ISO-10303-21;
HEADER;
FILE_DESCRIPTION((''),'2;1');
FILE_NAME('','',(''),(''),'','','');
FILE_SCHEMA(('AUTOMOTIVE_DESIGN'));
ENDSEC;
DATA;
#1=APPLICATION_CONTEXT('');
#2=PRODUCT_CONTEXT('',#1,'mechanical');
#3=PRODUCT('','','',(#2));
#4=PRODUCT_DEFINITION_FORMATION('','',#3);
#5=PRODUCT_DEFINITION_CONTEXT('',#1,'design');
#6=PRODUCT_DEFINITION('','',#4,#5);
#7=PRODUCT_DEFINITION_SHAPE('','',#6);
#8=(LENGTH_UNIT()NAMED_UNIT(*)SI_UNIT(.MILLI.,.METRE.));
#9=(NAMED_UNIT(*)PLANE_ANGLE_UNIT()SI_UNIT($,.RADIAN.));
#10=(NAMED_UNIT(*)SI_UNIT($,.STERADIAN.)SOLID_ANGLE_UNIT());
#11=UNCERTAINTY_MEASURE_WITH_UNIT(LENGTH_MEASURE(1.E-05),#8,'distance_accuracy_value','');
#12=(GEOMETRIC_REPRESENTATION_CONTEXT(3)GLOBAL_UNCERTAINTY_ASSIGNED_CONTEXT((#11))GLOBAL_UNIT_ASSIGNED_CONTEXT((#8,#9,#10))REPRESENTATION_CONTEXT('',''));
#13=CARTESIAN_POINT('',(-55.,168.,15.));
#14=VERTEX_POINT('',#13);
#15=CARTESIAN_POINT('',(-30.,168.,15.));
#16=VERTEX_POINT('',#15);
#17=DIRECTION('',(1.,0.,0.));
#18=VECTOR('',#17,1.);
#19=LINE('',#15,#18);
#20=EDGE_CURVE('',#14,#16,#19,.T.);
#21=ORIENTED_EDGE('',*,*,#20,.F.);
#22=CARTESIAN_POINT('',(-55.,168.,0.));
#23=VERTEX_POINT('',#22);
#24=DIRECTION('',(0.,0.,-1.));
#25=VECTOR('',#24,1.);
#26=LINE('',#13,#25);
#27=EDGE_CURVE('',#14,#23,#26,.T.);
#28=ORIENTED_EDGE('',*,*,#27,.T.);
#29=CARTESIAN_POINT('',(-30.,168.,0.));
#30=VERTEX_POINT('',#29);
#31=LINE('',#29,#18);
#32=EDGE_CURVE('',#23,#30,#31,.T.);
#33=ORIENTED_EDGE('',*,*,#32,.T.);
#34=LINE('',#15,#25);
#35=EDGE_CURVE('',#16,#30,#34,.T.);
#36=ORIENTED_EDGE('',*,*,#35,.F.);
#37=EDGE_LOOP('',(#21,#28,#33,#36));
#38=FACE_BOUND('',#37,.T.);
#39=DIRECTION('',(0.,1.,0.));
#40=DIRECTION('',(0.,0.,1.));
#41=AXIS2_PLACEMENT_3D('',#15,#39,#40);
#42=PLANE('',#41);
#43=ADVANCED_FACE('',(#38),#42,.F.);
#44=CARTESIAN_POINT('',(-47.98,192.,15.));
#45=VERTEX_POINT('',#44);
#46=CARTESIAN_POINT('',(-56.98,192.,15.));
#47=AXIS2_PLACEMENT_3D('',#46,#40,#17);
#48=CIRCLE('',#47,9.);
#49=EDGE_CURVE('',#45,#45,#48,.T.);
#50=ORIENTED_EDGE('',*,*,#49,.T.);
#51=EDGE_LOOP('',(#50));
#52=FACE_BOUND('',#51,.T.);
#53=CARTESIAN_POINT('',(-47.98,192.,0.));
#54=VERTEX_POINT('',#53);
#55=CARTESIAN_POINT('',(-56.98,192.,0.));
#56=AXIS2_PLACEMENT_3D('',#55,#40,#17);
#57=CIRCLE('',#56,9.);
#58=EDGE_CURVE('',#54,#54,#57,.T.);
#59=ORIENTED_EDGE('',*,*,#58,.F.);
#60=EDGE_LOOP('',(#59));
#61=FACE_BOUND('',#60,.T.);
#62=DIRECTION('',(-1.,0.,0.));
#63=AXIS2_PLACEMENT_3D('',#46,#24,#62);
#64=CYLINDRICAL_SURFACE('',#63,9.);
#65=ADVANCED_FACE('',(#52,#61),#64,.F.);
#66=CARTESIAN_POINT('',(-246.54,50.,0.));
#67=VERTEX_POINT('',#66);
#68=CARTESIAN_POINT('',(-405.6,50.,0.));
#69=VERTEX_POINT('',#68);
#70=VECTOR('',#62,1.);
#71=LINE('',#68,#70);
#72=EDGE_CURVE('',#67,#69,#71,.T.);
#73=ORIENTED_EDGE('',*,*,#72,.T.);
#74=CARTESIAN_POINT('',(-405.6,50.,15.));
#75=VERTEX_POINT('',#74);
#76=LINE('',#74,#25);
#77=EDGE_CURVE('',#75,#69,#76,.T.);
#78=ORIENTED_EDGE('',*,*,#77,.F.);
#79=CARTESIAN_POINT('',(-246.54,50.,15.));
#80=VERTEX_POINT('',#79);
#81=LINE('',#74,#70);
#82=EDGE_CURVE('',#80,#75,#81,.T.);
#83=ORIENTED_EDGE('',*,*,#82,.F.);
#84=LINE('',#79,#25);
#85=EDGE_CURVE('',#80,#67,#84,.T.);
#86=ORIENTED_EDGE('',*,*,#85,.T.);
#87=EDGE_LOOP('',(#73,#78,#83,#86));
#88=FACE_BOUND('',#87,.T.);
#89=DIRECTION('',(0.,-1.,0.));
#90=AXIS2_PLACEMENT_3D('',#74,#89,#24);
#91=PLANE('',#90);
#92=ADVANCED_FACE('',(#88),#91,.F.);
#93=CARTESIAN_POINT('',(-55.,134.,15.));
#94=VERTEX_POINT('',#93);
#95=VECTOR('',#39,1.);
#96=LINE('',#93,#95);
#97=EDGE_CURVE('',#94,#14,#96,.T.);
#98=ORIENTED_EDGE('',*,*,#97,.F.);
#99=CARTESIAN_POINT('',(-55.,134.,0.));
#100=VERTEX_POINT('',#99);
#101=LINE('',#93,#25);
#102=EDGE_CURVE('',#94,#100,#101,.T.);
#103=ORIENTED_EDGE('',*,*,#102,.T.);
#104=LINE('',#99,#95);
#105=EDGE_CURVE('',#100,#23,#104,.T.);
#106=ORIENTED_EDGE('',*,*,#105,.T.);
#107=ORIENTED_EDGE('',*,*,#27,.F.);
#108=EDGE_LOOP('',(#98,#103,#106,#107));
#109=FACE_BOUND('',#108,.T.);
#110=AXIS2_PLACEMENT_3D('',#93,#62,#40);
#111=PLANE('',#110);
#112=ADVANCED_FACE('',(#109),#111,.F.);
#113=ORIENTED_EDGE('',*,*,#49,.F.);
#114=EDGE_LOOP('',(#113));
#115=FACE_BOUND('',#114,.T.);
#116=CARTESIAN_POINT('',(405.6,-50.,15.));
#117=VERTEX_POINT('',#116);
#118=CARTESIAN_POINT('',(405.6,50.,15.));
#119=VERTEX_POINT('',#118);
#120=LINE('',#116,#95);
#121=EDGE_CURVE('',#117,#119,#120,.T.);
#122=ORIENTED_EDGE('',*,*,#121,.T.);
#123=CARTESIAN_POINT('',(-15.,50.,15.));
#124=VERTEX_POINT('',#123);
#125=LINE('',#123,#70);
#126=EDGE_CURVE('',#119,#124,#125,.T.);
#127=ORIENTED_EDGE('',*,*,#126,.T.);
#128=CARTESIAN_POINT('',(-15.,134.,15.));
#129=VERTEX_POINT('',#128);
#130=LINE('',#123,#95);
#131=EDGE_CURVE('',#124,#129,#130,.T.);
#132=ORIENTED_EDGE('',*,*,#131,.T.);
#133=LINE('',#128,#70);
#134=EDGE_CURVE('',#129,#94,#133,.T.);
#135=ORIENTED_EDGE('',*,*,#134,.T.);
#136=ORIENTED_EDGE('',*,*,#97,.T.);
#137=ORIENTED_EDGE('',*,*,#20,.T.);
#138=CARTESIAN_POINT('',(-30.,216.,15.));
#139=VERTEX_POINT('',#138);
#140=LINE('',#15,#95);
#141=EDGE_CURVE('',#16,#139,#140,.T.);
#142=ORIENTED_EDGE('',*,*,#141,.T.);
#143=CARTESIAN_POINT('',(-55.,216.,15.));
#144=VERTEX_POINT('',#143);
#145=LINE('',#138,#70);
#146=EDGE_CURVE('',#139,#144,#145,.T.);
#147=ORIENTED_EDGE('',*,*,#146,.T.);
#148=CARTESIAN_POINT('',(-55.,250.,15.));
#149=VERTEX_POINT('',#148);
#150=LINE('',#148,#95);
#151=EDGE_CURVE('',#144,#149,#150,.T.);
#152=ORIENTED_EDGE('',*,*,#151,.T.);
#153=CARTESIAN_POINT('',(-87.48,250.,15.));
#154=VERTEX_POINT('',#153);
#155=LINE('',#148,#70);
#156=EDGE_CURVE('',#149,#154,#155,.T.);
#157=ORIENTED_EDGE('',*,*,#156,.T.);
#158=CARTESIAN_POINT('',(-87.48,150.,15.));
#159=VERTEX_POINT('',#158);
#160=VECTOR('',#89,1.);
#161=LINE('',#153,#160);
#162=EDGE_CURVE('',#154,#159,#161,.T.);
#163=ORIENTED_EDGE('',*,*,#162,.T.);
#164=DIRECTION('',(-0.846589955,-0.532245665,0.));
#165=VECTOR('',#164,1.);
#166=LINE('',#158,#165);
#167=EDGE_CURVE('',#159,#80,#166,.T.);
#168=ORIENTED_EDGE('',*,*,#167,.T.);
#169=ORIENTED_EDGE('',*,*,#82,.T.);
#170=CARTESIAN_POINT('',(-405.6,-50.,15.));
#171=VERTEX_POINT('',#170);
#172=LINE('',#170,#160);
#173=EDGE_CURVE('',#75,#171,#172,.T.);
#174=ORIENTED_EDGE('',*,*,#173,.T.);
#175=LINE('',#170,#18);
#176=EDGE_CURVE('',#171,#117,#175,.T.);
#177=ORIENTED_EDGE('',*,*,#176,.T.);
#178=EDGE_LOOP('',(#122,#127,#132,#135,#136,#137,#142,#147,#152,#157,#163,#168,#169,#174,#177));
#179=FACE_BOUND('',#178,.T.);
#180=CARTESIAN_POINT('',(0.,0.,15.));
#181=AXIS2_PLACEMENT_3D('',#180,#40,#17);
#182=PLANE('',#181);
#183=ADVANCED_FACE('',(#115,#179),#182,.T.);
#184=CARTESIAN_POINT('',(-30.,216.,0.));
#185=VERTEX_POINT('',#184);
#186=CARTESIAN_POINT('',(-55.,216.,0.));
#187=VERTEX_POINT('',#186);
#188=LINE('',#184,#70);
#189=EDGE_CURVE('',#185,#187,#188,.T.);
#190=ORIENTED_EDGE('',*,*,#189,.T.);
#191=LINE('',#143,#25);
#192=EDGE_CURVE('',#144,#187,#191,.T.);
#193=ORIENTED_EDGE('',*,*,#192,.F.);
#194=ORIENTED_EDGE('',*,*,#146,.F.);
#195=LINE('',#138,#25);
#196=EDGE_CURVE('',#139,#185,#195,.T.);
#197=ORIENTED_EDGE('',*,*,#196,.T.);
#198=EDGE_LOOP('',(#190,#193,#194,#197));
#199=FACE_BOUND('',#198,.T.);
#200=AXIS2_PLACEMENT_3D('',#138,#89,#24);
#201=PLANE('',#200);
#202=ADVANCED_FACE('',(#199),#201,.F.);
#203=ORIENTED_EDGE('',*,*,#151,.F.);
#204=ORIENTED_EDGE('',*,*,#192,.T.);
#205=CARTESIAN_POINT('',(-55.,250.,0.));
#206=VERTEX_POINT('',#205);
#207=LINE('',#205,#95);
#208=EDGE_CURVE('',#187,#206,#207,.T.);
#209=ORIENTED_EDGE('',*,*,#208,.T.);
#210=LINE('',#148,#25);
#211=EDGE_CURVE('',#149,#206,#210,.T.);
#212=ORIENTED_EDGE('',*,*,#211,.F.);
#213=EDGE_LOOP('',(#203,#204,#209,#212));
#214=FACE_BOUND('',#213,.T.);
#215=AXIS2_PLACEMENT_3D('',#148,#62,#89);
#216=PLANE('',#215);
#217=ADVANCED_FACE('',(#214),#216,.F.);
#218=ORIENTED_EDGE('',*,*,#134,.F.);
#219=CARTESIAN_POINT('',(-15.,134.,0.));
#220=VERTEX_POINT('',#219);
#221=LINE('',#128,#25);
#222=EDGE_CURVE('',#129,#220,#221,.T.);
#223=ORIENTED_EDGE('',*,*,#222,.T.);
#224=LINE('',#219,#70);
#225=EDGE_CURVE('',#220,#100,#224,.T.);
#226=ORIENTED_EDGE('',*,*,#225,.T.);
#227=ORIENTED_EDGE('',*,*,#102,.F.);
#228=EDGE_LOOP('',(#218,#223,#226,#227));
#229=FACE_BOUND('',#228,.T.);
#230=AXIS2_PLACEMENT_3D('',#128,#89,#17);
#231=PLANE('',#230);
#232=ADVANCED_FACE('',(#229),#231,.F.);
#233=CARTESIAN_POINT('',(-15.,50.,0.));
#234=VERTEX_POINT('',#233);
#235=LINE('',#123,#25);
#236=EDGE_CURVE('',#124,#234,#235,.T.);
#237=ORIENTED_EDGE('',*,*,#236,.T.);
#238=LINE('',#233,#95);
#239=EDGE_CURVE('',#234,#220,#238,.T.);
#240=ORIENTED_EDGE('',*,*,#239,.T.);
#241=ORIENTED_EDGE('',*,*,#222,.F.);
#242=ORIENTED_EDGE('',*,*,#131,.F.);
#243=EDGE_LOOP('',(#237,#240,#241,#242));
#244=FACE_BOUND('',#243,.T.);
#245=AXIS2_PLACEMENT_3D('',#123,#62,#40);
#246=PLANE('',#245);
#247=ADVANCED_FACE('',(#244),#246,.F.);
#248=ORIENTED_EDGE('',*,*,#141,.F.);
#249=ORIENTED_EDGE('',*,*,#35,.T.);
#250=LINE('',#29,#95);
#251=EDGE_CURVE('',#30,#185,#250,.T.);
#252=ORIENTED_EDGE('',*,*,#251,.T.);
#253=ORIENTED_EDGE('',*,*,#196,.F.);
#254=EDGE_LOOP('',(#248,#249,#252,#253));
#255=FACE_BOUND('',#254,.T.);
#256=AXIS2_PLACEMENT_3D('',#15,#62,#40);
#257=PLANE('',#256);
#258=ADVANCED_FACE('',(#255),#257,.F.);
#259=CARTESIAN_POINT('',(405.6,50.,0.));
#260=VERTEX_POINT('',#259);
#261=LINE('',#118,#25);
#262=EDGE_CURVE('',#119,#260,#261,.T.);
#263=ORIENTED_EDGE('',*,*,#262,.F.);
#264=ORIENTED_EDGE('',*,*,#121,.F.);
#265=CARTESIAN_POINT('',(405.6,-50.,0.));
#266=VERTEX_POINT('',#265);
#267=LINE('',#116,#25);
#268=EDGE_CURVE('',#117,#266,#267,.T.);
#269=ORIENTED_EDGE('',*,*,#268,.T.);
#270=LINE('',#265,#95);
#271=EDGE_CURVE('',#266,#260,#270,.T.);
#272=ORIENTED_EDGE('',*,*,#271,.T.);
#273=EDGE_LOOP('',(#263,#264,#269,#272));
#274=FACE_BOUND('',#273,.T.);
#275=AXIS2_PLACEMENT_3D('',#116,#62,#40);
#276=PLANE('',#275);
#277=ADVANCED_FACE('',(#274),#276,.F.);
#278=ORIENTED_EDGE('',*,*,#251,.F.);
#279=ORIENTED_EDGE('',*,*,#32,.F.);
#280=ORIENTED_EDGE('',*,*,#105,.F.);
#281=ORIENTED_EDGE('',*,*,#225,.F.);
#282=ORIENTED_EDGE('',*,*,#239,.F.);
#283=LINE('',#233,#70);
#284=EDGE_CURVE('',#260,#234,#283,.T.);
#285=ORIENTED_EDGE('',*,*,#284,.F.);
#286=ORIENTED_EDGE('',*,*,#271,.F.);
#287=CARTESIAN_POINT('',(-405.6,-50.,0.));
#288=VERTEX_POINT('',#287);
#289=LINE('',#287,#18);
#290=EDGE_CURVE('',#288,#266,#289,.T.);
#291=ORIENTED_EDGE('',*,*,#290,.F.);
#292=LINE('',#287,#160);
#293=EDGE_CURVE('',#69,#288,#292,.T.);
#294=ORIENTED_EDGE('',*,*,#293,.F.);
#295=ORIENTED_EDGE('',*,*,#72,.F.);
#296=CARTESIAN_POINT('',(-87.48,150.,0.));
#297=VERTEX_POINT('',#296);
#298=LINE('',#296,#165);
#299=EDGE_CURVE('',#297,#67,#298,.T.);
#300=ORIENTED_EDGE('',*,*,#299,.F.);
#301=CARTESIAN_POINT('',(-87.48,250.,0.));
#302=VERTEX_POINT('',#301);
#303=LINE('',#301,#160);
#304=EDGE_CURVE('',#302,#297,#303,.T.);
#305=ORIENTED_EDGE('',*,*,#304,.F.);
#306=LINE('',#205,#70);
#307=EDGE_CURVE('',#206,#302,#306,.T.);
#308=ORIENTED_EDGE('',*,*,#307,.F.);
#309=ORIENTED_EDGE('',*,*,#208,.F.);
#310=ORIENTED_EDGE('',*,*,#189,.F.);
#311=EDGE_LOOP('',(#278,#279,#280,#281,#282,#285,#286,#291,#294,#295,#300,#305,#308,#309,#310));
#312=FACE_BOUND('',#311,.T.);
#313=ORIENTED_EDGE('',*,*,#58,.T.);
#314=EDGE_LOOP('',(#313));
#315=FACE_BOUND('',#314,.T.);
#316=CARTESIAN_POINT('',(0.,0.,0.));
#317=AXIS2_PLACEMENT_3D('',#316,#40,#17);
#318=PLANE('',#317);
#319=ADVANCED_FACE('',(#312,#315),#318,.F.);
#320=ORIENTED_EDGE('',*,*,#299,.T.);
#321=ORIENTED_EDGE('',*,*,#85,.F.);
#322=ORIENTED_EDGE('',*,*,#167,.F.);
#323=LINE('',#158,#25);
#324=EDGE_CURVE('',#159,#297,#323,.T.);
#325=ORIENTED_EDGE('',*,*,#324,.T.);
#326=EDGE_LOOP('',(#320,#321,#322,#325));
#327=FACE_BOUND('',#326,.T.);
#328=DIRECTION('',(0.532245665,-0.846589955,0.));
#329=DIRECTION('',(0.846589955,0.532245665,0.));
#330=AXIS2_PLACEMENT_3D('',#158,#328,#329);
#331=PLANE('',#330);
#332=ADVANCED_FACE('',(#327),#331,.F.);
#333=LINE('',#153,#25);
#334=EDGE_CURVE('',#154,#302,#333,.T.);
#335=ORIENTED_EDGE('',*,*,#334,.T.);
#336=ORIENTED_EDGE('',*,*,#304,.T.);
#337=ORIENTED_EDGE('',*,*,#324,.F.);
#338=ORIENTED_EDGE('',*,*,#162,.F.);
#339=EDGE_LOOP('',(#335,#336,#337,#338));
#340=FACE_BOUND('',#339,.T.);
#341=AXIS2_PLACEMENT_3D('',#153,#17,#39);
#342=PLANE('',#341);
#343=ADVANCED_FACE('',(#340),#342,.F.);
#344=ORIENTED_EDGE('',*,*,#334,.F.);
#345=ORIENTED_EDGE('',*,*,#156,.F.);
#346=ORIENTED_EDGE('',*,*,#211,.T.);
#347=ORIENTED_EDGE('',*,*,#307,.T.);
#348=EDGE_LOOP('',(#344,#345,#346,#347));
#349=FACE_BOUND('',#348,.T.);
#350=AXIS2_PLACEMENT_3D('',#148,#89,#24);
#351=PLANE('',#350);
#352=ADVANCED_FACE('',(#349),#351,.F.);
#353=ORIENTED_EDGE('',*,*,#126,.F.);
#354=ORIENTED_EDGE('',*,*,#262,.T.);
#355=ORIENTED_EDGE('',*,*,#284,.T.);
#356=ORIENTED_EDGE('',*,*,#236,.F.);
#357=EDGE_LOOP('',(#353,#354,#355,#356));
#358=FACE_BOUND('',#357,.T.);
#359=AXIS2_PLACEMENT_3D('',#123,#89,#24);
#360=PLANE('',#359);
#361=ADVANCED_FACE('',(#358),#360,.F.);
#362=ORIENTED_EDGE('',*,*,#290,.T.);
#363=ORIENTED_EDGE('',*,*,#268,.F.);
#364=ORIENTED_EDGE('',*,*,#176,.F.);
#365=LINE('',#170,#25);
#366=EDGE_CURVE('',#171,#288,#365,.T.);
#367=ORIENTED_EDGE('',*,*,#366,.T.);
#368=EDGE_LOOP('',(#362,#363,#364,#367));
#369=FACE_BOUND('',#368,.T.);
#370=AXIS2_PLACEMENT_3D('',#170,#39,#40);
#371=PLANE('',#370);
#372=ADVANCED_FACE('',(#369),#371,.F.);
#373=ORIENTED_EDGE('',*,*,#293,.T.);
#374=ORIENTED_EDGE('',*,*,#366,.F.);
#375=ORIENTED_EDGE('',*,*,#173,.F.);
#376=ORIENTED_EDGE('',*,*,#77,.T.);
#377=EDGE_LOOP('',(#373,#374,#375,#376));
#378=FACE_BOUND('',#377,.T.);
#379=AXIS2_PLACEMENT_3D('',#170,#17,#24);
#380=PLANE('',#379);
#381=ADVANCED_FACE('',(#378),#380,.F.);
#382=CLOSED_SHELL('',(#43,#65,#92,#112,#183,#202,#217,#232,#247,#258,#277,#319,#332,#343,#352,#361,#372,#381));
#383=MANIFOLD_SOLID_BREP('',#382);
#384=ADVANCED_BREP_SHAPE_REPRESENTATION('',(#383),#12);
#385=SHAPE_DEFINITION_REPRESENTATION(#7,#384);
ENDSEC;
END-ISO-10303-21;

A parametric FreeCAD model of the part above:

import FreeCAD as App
import Part
import Sketcher

V = App.Vector


def add_polygon(sketch, points):
    """Adds a closed chain of lines whose ends are joined by coincident constraints."""
    first, n = sketch.GeometryCount, len(points)
    for a, b in zip(points, points[1:] + points[:1]):
        sketch.addGeometry(Part.LineSegment(App.Vector(*a, 0), App.Vector(*b, 0)), False)
    for i in range(n):
        sketch.addConstraint(Sketcher.Constraint("Coincident", first + i, 2, first + (i + 1) % n, 1))

doc = App.newDocument("Part")
body = doc.addObject("PartDesign::Body", "Body")

# Sketch on XY plane
sketch1 = body.newObject("Sketcher::SketchObject", "Sketch")
sketch1.AttachmentSupport = (doc.getObject("XY_Plane"), [""])
sketch1.MapMode = "FlatFace"
add_polygon(sketch1, [(-15, 50), (-15, 134), (-55, 134), (-55, 168), (-30, 168), (-30, 216), (-55, 216), (-55, 250), (-87, 250), (-87, 150), (-247, 50), (-406, 50), (-406, -50), (406, -50), (406, 50)])  # lines 0-14
sketch1.addGeometry(Part.Circle(V(-57, 192, 0), V(0, 0, 1), 9), False)  # 15
sketch1.addConstraint(Sketcher.Constraint("Vertical", 0))
sketch1.addConstraint(Sketcher.Constraint("Horizontal", 1))
sketch1.addConstraint(Sketcher.Constraint("Vertical", 2))
sketch1.addConstraint(Sketcher.Constraint("Horizontal", 3))
sketch1.addConstraint(Sketcher.Constraint("Vertical", 4))
sketch1.addConstraint(Sketcher.Constraint("Horizontal", 5))
sketch1.addConstraint(Sketcher.Constraint("Vertical", 6))
sketch1.addConstraint(Sketcher.Constraint("Horizontal", 7))
sketch1.addConstraint(Sketcher.Constraint("Vertical", 8))
sketch1.addConstraint(Sketcher.Constraint("Horizontal", 10))
sketch1.addConstraint(Sketcher.Constraint("Vertical", 11))
sketch1.addConstraint(Sketcher.Constraint("Horizontal", 12))
sketch1.addConstraint(Sketcher.Constraint("Vertical", 13))
sketch1.addConstraint(Sketcher.Constraint("Horizontal", 14))
sketch1.addConstraint(Sketcher.Constraint("Symmetric", 10, 2, 12, 2, -1, 1))
sketch1.addConstraint(Sketcher.Constraint("Horizontal", 10, 2, 13, 2))
sketch1.addConstraint(Sketcher.Constraint("Vertical", 2, 2, 5, 2))
sketch1.addConstraint(Sketcher.Constraint("Equal", 2, 6))
sketch1.addConstraint(Sketcher.Constraint("Equal", 8, 11))
sketch1.addConstraint(Sketcher.Constraint("Diameter", 15, 18.0))
sketch1.addConstraint(Sketcher.Constraint("DistanceX", 1, 2, 1, 1, 40.0))
sketch1.addConstraint(Sketcher.Constraint("DistanceX", 3, 1, 3, 2, 25.0))
sketch1.addConstraint(Sketcher.Constraint("DistanceY", 0, 1, 0, 2, 84.0))
sketch1.addConstraint(Sketcher.Constraint("DistanceY", 2, 1, 2, 2, 34.0))
sketch1.addConstraint(Sketcher.Constraint("DistanceY", 4, 1, 4, 2, 48.0))
sketch1.addConstraint(Sketcher.Constraint("DistanceY", 8, 2, 8, 1, 100.0))
sketch1.addConstraint(Sketcher.Constraint("DistanceX", 12, 1, 12, 2, 811.2))
sketch1.addConstraint(Sketcher.Constraint("DistanceX", 14, 2, 14, 1, 420.6))
sketch1.addConstraint(Sketcher.Constraint("DistanceY", -1, 1, 15, 3, 192.0))
sketch1.addConstraint(Sketcher.Constraint("DistanceX", 7, 2, 7, 1, 32.48))
sketch1.addConstraint(Sketcher.Constraint("DistanceX", 10, 2, 10, 1, 159.06))
sketch1.addConstraint(Sketcher.Constraint("DistanceX", 7, 2, 15, 3, 30.5))
pad1 = body.newObject("PartDesign::Pad", "Pad")
pad1.Profile = sketch1
pad1.Length = 15

doc.recompute()
